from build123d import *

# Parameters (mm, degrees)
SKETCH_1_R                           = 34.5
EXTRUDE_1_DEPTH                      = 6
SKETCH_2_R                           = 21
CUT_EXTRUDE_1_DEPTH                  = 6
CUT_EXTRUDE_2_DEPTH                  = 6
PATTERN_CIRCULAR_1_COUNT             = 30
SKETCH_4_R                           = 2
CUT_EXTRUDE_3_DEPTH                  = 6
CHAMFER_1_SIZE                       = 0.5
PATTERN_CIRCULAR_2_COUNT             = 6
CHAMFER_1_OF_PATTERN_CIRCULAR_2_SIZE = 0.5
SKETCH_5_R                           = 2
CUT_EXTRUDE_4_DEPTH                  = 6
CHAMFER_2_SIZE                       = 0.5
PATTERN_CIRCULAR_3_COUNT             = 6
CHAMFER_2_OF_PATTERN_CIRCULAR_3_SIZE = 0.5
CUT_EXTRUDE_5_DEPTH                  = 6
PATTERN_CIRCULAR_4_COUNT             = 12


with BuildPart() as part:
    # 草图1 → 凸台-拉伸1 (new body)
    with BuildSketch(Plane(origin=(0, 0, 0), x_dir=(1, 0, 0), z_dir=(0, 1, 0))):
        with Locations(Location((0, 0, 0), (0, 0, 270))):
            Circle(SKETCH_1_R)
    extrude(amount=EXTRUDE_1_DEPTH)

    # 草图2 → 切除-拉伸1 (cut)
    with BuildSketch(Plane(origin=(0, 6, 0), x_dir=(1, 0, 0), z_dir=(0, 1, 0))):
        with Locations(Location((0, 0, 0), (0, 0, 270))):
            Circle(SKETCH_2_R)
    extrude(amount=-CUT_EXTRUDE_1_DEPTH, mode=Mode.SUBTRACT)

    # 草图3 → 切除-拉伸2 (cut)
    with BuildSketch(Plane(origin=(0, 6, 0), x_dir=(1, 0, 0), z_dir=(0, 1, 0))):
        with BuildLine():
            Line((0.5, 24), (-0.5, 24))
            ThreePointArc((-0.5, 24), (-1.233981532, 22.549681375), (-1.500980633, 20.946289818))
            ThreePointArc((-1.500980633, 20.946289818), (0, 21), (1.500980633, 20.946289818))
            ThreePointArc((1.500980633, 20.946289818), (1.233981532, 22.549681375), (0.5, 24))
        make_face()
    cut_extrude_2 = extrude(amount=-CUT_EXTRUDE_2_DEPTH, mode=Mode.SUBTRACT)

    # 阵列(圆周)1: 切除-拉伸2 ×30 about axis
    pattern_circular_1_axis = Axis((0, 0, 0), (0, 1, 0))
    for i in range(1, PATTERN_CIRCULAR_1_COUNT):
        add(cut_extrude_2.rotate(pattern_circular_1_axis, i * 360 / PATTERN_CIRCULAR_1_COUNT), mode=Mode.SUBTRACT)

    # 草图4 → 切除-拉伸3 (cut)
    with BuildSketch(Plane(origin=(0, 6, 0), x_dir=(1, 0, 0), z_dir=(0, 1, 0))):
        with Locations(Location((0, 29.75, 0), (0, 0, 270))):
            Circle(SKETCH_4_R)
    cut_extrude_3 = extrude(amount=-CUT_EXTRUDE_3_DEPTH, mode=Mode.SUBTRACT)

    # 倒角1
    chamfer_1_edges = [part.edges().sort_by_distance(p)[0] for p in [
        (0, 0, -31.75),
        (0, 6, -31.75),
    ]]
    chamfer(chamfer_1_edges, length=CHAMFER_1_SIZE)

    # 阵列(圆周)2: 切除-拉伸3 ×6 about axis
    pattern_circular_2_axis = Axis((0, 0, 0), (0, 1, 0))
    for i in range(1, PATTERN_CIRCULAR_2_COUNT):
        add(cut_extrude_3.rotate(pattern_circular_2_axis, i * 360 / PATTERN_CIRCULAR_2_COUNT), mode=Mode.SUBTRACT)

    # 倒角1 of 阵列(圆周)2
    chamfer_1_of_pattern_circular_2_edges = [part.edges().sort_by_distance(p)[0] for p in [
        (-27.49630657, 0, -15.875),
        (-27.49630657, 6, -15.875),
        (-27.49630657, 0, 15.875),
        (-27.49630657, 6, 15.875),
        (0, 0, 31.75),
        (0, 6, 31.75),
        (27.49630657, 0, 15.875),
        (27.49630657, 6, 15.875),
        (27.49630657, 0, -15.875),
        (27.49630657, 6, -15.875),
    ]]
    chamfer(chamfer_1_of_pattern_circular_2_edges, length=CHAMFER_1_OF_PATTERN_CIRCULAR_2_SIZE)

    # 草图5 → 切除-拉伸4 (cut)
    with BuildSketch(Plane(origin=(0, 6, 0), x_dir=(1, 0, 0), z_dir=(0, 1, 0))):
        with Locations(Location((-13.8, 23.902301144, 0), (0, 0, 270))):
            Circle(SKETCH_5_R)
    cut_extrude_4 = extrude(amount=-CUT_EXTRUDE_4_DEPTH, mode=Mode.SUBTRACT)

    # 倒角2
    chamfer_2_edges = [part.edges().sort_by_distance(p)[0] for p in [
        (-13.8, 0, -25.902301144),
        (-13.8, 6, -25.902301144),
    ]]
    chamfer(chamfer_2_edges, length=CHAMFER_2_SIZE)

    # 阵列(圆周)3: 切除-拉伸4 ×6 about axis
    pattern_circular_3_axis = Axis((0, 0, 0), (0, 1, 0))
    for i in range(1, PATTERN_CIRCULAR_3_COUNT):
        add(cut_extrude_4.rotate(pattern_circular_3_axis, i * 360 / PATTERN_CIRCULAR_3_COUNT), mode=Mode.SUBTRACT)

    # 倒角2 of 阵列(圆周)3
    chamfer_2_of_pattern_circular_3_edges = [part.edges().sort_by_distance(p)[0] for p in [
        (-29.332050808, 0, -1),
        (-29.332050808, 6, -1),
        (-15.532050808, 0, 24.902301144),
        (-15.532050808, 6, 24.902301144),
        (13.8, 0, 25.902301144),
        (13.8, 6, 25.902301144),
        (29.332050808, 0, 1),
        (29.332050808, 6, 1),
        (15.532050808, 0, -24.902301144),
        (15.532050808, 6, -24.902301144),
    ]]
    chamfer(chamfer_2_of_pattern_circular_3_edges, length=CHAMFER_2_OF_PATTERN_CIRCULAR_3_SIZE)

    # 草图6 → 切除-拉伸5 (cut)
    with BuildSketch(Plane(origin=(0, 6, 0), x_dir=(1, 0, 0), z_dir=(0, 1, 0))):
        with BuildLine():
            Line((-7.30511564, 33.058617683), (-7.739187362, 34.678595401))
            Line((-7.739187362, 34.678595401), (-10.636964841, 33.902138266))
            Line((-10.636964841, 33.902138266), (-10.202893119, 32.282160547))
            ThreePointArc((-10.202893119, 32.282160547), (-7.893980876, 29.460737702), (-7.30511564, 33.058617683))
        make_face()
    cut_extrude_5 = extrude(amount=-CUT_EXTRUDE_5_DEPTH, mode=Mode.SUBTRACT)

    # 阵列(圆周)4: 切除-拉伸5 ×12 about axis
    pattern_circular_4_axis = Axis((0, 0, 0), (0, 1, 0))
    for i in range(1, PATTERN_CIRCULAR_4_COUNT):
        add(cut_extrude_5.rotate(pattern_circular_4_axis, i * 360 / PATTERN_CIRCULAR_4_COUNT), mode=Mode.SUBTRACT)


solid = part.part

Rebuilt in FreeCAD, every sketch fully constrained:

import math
import FreeCAD as App
import Part
import Sketcher
from FreeCAD import Vector
Q = App.Units.Quantity


def edges_at(feature, points):
    """Names of the edges that pass closest to the given points."""
    edges = feature.Shape.Edges
    near = lambda p: min(range(len(edges)), key=lambda i: edges[i].distToShape(Part.Vertex(*p))[0])
    return sorted({f"Edge{near(p) + 1}" for p in points})

doc = App.newDocument("Part")
body = doc.addObject("PartDesign::Body", "Body")

# Sketch on XZ plane
sketch1 = body.newObject("Sketcher::SketchObject", "Sketch")
sketch1.AttachmentSupport = (doc.getObject("XZ_Plane"), [""])
sketch1.MapMode = "FlatFace"
sketch1.addGeometry(Part.Circle(Vector(0, 0, 0), Vector(0, 0, 1), 34), False)
sketch1.addConstraint([
    Sketcher.Constraint("Coincident", 0, 3, -1, 1),
    Sketcher.Constraint("Diameter", 0, 69.0),
])
pad1 = body.newObject("PartDesign::Pad", "Pad")
pad1.Profile = sketch1
pad1.Length = 6
pad1.Reversed = True

# Sketch on XZ plane
sketch2 = body.newObject("Sketcher::SketchObject", "Sketch001")
sketch2.AttachmentSupport = (doc.getObject("XZ_Plane"), [""])
sketch2.MapMode = "FlatFace"
sketch2.AttachmentOffset = App.Placement(Vector(0, 0, -6), App.Rotation())
sketch2.addGeometry(Part.Circle(Vector(0, 0, 0), Vector(0, 0, 1), 21), False)
sketch2.addConstraint([
    Sketcher.Constraint("Coincident", 0, 3, -1, 1),
    Sketcher.Constraint("Diameter", 0, 42.0),
])
pocket1 = body.newObject("PartDesign::Pocket", "Pocket")
pocket1.Profile = sketch2
pocket1.Length = 6
pocket1.Reversed = True

# Sketch on XZ plane
sketch3 = body.newObject("Sketcher::SketchObject", "Sketch002")
sketch3.AttachmentSupport = (doc.getObject("XZ_Plane"), [""])
sketch3.MapMode = "FlatFace"
sketch3.AttachmentOffset = App.Placement(Vector(0, 0, -6), App.Rotation())
sketch3.addGeometry([
    Part.LineSegment(Vector(0.5, -24, 0), Vector(-0.5, -24, 0)),
    Part.ArcOfCircle(Part.Circle(Vector(3.9, -20.9, 0), Vector(0, 0, 1), 5.4), math.radians(-179), math.radians(-144)),
    Part.ArcOfCircle(Part.Circle(Vector(0, 0, 0), Vector(0, 0, 1), 21), math.radians(-94.1), math.radians(-85.9)),
    Part.ArcOfCircle(Part.Circle(Vector(-3.9, -20.9, 0), Vector(0, 0, 1), 5.4), math.radians(-36), math.radians(-1)),
], False)
sketch3.addConstraint([
    Sketcher.Constraint("Coincident", 0, 2, 1, 2),
    Sketcher.Constraint("Coincident", 1, 1, 2, 1),
    Sketcher.Constraint("Coincident", 2, 2, 3, 2),
    Sketcher.Constraint("Coincident", 3, 1, 0, 1),
    Sketcher.Constraint("Horizontal", 0),
    Sketcher.Constraint("Coincident", 2, 3, -1, 1),
    Sketcher.Constraint("Equal", 1, 3),
    Sketcher.Constraint("Symmetric", 1, 3, 3, 3, -2),
    Sketcher.Constraint("Radius", 2, 21.0),
    Sketcher.Constraint("DistanceX", 0, 2, 0, 1, 1.0),
    Sketcher.Constraint("DistanceY", 0, 2, -1, 1, 24.0),
    Sketcher.Constraint("DistanceX", 3, 3, 1, 3, 7.75),
    Sketcher.Constraint("DistanceY", 1, 3, -1, 1, 20.875),
])
pocket2 = body.newObject("PartDesign::Pocket", "Pocket001")
pocket2.Profile = sketch3
pocket2.Length = 6
pocket2.Reversed = True
doc.recompute()

polarpattern = body.newObject("PartDesign::PolarPattern", "PolarPattern")
polarpattern.Originals = [pocket2]
polarpattern.Axis = (doc.getObject("Y_Axis"), [""])
polarpattern.Angle = 360
polarpattern.Occurrences = 30
body.Tip = polarpattern

# Sketch on XZ plane
sketch4 = body.newObject("Sketcher::SketchObject", "Sketch003")
sketch4.AttachmentSupport = (doc.getObject("XZ_Plane"), [""])
sketch4.MapMode = "FlatFace"
sketch4.AttachmentOffset = App.Placement(Vector(0, 0, -6), App.Rotation())
sketch4.addGeometry(Part.Circle(Vector(0, -29.8, 0), Vector(0, 0, 1), 2), False)
sketch4.addConstraint([
    Sketcher.Constraint("PointOnObject", 0, 3, -2),
    Sketcher.Constraint("Diameter", 0, 4.0),
    Sketcher.Constraint("DistanceY", 0, 3, -1, 1, 29.75),
])
pocket3 = body.newObject("PartDesign::Pocket", "Pocket002")
pocket3.Profile = sketch4
pocket3.Length = 6
pocket3.Reversed = True
doc.recompute()

chamfer = body.newObject("PartDesign::Chamfer", "Chamfer")
chamfer.Base = (pocket3, edges_at(pocket3, [(0, 0, -31.75), (0, 6, -31.75)]))
chamfer.Size = 0.5
doc.recompute()

polarpattern2 = body.newObject("PartDesign::PolarPattern", "PolarPattern001")
polarpattern2.Originals = [pocket3]
polarpattern2.Axis = (doc.getObject("Y_Axis"), [""])
polarpattern2.Angle = 360
polarpattern2.Occurrences = 6
body.Tip = polarpattern2
doc.recompute()

chamfer2 = body.newObject("PartDesign::Chamfer", "Chamfer001")
chamfer2.Base = (polarpattern2, edges_at(polarpattern2, [
    (-27.496, 0, -15.875),
    (-27.496, 6, -15.875),
    (-27.496, 0, 15.875),
    (-27.496, 6, 15.875),
    (0, 0, 31.75),
    (0, 6, 31.75),
    (27.496, 0, 15.875),
    (27.496, 6, 15.875),
    (27.496, 0, -15.875),
    (27.496, 6, -15.875),
]))
chamfer2.Size = 0.5

# Sketch on XZ plane
sketch5 = body.newObject("Sketcher::SketchObject", "Sketch004")
sketch5.AttachmentSupport = (doc.getObject("XZ_Plane"), [""])
sketch5.MapMode = "FlatFace"
sketch5.AttachmentOffset = App.Placement(Vector(0, 0, -6), App.Rotation())
sketch5.addGeometry(Part.Circle(Vector(-13.8, -23.9, 0), Vector(0, 0, 1), 2), False)
sketch5.addConstraint([
    Sketcher.Constraint("Diameter", 0, 4.0),
    Sketcher.Constraint("DistanceX", 0, 3, -1, 1, 13.8),
    Sketcher.Constraint("DistanceY", 0, 3, -1, 1, 23.902301),
])
pocket4 = body.newObject("PartDesign::Pocket", "Pocket003")
pocket4.Profile = sketch5
pocket4.Length = 6
pocket4.Reversed = True
doc.recompute()

chamfer3 = body.newObject("PartDesign::Chamfer", "Chamfer002")
chamfer3.Base = (pocket4, edges_at(pocket4, [(-13.8, 0, -25.902), (-13.8, 6, -25.902)]))
chamfer3.Size = 0.5
doc.recompute()

polarpattern3 = body.newObject("PartDesign::PolarPattern", "PolarPattern002")
polarpattern3.Originals = [pocket4]
polarpattern3.Axis = (doc.getObject("Y_Axis"), [""])
polarpattern3.Angle = 360
polarpattern3.Occurrences = 6
body.Tip = polarpattern3
doc.recompute()

chamfer4 = body.newObject("PartDesign::Chamfer", "Chamfer003")
chamfer4.Base = (polarpattern3, edges_at(polarpattern3, [
    (-29.332, 0, -1),
    (-29.332, 6, -1),
    (-15.532, 0, 24.902),
    (-15.532, 6, 24.902),
    (13.8, 0, 25.902),
    (13.8, 6, 25.902),
    (29.332, 0, 1),
    (29.332, 6, 1),
    (15.532, 0, -24.902),
    (15.532, 6, -24.902),
]))
chamfer4.Size = 0.5

# Sketch on XZ plane
sketch6 = body.newObject("Sketcher::SketchObject", "Sketch005")
sketch6.AttachmentSupport = (doc.getObject("XZ_Plane"), [""])
sketch6.MapMode = "FlatFace"
sketch6.AttachmentOffset = App.Placement(Vector(0, 0, -6), App.Rotation())
sketch6.addGeometry([
    Part.LineSegment(Vector(-7.3, -33.1, 0), Vector(-7.7, -34.7, 0)),
    Part.LineSegment(Vector(-7.7, -34.7, 0), Vector(-10.6, -33.9, 0)),
    Part.LineSegment(Vector(-10.6, -33.9, 0), Vector(-10.2, -32.3, 0)),
    Part.ArcOfCircle(Part.Circle(Vector(-8.4, -31.4, 0), Vector(0, 0, 1), 2), math.radians(-56), math.radians(206)),
], False)
sketch6.addConstraint([
    Sketcher.Constraint("Coincident", 0, 2, 1, 1),
    Sketcher.Constraint("Coincident", 1, 2, 2, 1),
    Sketcher.Constraint("Coincident", 2, 2, 3, 2),
    Sketcher.Constraint("Coincident", 3, 1, 0, 1),
    Sketcher.Constraint("Perpendicular", 0, 1),
    Sketcher.Constraint("Perpendicular", 1, 2),
    Sketcher.Constraint("Equal", 0, 2),
    Sketcher.Constraint("Radius", 3, 2.0),
    Sketcher.Constraint("Angle", 0, Q("-105 deg")),
    Sketcher.Constraint("Distance", 1, 3.0),
    Sketcher.Constraint("DistanceX", 3, 3, -1, 1, 8.411619),
    Sketcher.Constraint("DistanceY", 3, 3, -1, 1, 31.392589),
    Sketcher.Constraint("DistanceY", 1, 2, -1, 1, 33.902138),
])
pocket5 = body.newObject("PartDesign::Pocket", "Pocket004")
pocket5.Profile = sketch6
pocket5.Length = 6
pocket5.Reversed = True
doc.recompute()

polarpattern4 = body.newObject("PartDesign::PolarPattern", "PolarPattern003")
polarpattern4.Originals = [pocket5]
polarpattern4.Axis = (doc.getObject("Y_Axis"), [""])
polarpattern4.Angle = 360
polarpattern4.Occurrences = 12
body.Tip = polarpattern4

doc.recompute()
